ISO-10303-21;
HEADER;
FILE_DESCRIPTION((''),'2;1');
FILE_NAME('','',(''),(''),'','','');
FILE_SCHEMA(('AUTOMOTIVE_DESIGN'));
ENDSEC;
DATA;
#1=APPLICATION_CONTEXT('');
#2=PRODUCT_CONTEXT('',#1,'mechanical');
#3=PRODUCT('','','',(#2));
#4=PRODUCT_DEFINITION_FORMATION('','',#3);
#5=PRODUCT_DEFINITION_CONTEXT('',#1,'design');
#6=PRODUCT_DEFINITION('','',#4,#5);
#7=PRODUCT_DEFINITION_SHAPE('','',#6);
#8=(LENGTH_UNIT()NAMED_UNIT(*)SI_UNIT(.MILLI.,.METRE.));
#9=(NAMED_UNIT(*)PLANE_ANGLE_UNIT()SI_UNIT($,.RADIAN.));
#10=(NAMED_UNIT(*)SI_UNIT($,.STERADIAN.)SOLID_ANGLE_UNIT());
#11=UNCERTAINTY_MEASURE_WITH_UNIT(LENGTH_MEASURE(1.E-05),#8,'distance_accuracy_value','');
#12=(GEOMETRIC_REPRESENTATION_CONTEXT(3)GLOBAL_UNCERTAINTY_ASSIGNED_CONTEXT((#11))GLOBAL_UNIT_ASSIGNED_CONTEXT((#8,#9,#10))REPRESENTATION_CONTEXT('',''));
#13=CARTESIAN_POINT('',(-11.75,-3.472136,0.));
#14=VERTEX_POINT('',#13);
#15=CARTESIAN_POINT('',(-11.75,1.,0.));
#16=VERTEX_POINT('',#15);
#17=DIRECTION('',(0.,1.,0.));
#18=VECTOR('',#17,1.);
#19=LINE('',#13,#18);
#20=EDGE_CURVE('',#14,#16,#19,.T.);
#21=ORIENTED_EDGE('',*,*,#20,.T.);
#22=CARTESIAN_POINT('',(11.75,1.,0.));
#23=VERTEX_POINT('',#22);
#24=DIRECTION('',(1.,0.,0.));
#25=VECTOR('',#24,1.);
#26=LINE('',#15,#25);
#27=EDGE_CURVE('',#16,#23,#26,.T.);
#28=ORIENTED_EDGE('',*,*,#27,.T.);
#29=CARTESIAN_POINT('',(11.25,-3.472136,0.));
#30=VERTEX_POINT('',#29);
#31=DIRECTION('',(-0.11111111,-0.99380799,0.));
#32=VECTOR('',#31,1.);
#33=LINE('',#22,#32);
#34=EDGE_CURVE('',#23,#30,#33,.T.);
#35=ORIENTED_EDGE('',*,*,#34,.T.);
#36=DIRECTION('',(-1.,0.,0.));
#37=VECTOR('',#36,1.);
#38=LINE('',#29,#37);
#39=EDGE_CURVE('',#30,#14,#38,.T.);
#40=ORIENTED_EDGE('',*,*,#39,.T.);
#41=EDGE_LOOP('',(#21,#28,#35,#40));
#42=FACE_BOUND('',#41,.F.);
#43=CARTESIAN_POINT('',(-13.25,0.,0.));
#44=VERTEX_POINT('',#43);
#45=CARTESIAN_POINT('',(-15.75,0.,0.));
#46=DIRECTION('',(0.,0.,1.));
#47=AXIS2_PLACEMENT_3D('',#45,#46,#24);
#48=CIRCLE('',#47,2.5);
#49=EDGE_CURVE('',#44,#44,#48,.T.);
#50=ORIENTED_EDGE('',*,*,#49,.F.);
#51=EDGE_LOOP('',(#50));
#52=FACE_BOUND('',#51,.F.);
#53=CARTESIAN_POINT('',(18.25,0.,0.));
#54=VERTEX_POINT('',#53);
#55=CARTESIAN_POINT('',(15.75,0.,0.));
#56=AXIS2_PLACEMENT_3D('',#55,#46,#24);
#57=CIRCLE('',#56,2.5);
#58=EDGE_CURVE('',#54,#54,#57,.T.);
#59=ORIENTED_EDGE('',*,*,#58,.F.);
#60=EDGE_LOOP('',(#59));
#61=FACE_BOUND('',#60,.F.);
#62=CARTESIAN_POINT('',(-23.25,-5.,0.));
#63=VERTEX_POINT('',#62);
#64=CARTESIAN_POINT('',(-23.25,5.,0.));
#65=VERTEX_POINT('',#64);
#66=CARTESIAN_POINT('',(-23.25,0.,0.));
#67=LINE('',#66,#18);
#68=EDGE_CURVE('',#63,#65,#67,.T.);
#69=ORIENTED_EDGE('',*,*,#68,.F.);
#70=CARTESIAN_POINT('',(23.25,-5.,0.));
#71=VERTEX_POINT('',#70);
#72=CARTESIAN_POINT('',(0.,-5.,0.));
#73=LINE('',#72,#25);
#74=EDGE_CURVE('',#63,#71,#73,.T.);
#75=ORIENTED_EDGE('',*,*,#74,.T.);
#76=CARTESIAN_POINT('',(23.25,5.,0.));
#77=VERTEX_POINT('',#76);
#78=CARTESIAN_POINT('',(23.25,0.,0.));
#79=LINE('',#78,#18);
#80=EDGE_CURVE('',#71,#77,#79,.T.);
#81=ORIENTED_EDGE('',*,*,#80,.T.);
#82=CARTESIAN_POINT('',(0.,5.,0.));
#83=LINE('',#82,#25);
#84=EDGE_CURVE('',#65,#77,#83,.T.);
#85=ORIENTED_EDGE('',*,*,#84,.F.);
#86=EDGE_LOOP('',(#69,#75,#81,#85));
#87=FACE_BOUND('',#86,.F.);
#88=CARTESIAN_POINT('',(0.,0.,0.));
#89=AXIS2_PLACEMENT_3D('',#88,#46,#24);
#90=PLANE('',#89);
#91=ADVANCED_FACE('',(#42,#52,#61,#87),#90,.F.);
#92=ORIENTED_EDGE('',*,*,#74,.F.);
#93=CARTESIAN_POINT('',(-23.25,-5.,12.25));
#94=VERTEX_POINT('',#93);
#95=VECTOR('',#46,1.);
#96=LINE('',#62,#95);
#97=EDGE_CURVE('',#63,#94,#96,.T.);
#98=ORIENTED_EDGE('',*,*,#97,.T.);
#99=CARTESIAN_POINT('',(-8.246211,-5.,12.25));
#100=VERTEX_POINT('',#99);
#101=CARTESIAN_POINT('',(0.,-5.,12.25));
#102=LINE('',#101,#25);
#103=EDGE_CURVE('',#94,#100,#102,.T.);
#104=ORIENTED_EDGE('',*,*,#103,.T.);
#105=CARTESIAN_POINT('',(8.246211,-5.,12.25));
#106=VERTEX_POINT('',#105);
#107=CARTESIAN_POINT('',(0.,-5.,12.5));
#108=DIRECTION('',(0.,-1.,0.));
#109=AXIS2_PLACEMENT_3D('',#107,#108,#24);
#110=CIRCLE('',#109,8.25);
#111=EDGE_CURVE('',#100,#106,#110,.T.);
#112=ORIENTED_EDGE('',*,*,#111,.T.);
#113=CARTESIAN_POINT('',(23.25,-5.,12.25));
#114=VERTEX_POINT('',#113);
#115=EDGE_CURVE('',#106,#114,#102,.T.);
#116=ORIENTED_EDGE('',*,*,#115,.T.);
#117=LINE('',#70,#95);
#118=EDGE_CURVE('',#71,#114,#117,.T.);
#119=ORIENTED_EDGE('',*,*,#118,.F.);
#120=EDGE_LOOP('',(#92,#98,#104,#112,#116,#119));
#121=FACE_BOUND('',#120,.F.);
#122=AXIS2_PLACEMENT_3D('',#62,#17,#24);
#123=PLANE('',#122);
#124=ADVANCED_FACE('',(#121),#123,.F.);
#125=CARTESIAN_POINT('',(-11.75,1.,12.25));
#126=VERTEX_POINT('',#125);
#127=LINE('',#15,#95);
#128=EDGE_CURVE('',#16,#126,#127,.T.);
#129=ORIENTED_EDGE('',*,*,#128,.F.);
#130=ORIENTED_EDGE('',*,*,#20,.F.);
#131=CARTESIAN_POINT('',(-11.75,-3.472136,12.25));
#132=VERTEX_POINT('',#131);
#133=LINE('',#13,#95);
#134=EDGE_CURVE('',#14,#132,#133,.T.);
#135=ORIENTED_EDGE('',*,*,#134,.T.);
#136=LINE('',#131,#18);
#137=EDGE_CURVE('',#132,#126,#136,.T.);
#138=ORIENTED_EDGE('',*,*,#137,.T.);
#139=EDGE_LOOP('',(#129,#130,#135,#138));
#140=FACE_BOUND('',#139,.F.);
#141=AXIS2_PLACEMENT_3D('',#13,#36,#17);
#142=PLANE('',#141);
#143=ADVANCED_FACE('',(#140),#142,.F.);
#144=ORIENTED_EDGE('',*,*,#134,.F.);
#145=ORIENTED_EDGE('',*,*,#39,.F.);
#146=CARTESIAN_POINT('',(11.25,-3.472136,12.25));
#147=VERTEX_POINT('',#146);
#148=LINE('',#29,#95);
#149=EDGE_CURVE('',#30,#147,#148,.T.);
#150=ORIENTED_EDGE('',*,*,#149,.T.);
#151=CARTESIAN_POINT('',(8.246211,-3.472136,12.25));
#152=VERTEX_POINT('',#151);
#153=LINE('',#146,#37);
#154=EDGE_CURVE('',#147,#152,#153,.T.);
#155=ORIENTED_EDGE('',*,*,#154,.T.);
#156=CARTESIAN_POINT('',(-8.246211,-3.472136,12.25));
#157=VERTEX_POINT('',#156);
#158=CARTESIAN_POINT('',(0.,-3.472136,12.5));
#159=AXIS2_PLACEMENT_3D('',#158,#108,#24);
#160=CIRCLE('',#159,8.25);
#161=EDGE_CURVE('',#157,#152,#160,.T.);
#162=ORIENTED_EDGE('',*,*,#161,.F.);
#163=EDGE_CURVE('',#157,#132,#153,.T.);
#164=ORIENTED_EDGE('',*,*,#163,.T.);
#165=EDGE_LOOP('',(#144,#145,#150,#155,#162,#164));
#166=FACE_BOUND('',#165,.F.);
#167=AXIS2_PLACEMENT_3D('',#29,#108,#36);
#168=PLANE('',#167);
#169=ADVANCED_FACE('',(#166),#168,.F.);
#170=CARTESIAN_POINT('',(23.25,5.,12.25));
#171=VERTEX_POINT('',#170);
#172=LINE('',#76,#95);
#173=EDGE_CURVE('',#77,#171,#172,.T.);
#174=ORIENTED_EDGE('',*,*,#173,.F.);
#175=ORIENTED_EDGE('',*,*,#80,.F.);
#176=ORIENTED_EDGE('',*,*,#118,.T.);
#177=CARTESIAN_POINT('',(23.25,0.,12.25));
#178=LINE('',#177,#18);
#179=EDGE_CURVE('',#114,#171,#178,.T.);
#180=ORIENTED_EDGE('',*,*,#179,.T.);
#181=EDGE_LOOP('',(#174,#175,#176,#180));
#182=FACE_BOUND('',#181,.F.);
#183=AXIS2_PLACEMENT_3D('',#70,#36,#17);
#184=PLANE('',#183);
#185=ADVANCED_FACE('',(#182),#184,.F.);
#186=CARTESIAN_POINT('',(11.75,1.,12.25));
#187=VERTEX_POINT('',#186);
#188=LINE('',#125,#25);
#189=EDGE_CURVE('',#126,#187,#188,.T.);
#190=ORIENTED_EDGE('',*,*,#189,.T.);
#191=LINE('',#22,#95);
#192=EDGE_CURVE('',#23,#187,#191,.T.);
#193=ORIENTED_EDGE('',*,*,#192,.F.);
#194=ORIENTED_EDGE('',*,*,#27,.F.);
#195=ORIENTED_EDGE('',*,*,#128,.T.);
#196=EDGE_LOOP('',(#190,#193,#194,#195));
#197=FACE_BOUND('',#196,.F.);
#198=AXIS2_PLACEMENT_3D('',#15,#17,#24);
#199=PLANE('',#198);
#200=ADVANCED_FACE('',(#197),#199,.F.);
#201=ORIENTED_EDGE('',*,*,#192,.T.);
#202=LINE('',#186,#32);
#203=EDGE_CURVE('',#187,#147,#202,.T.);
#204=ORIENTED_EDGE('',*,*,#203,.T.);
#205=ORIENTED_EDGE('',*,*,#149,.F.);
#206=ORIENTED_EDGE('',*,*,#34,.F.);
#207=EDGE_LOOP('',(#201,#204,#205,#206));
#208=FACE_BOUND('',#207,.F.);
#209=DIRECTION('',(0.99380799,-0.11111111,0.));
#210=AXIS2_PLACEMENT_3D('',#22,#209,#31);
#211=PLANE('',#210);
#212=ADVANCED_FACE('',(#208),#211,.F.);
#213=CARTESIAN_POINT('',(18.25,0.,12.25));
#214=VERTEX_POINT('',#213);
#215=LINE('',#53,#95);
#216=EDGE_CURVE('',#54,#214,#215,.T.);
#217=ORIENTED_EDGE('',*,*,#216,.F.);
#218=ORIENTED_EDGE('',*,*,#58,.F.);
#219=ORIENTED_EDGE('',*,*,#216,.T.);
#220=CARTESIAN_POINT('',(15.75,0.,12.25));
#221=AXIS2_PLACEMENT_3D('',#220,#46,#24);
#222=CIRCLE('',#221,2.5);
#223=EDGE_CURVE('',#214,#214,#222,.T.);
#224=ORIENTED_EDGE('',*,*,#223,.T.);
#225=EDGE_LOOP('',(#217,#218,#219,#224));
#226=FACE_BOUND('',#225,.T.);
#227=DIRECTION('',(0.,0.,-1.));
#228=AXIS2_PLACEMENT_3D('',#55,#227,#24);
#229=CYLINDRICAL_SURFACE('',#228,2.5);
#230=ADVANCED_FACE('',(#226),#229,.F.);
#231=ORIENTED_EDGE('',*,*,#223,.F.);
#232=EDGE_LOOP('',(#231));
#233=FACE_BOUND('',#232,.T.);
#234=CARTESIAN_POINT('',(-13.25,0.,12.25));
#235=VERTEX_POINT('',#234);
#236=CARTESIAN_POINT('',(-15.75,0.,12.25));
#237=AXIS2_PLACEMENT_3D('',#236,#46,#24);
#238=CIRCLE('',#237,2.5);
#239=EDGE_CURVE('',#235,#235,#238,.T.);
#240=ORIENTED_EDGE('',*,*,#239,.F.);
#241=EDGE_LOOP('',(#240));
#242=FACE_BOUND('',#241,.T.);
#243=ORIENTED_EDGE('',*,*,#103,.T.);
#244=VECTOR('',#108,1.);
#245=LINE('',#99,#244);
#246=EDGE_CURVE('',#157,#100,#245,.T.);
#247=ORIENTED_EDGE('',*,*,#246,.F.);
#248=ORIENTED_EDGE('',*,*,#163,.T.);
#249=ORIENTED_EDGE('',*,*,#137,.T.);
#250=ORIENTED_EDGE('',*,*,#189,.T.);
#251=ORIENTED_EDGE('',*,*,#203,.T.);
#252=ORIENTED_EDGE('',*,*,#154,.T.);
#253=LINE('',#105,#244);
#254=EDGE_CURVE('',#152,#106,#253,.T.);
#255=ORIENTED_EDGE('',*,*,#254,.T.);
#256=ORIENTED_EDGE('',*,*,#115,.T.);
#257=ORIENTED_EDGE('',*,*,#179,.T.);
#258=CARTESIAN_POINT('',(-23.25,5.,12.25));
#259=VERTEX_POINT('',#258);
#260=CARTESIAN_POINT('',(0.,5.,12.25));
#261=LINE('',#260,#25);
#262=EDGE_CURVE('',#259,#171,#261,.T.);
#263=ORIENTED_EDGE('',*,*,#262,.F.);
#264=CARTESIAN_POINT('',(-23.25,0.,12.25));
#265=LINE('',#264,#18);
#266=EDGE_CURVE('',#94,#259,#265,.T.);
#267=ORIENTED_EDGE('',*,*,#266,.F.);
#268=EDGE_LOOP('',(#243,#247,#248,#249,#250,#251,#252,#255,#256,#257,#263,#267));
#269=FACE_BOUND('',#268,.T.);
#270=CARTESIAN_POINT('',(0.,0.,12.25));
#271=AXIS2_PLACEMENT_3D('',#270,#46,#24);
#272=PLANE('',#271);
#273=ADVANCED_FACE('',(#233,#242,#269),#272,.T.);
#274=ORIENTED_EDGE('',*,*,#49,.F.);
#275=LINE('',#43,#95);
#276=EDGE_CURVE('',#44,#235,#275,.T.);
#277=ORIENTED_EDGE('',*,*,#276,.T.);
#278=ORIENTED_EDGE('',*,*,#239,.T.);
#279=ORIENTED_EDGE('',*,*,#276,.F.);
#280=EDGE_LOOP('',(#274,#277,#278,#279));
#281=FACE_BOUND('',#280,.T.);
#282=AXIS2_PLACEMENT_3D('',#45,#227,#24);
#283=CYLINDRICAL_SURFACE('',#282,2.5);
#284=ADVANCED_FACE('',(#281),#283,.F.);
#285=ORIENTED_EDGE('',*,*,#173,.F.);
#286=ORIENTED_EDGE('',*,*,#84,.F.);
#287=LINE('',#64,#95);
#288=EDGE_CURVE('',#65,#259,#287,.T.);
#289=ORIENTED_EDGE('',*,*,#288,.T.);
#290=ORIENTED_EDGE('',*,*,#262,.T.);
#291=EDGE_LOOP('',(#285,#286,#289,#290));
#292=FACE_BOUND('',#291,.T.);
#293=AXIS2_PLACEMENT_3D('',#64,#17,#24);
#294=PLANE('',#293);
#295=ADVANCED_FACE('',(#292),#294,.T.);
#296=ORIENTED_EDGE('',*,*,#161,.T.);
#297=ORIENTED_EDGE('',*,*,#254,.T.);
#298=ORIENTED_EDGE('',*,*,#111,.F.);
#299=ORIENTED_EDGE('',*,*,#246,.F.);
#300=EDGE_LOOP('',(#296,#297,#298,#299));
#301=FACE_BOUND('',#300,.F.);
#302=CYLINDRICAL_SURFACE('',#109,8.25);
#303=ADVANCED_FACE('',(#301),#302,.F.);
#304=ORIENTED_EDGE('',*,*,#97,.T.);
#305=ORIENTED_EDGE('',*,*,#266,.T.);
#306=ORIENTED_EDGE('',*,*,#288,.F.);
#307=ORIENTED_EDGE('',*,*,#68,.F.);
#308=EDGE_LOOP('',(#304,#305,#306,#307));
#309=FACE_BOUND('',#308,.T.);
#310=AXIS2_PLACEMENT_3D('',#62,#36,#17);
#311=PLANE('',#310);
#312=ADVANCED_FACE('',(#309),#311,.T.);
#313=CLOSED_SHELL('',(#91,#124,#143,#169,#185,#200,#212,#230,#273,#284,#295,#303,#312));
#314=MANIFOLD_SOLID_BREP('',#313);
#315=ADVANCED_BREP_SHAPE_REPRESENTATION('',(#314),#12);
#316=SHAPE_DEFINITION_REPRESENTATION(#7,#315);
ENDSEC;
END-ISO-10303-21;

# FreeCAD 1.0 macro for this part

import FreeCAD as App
import Part
import Sketcher

V = App.Vector


def add_polygon(sketch, points):
    """Adds a closed chain of lines whose ends are joined by coincident constraints."""
    first, n = sketch.GeometryCount, len(points)
    for a, b in zip(points, points[1:] + points[:1]):
        sketch.addGeometry(Part.LineSegment(App.Vector(*a, 0), App.Vector(*b, 0)), False)
    for i in range(n):
        sketch.addConstraint(Sketcher.Constraint("Coincident", first + i, 2, first + (i + 1) % n, 1))

doc = App.newDocument("Part")
body = doc.addObject("PartDesign::Body", "Body")

# Sketch on XY plane
sketch1 = body.newObject("Sketcher::SketchObject", "Sketch")
sketch1.AttachmentSupport = (doc.getObject("XY_Plane"), [""])
sketch1.MapMode = "FlatFace"
add_polygon(sketch1, [(-23.25, 5), (-23.25, -5), (23.25, -5), (23.25, 5)])  # lines 0-3
add_polygon(sketch1, [(11.75, 1), (11.25, -3.472136), (-11.75, -3.472136), (-11.75, 1)])  # lines 4-7
sketch1.addGeometry(Part.Circle(V(-15.75, 0, 0), V(0, 0, 1), 2.5), False)  # 8
sketch1.addGeometry(Part.Circle(V(15.75, 0, 0), V(0, 0, 1), 2.5), False)  # 9
sketch1.addConstraint(Sketcher.Constraint("Vertical", 0))
sketch1.addConstraint(Sketcher.Constraint("Horizontal", 1))
sketch1.addConstraint(Sketcher.Constraint("Vertical", 2))
sketch1.addConstraint(Sketcher.Constraint("Horizontal", 3))
sketch1.addConstraint(Sketcher.Constraint("Horizontal", 5))
sketch1.addConstraint(Sketcher.Constraint("Vertical", 6))
sketch1.addConstraint(Sketcher.Constraint("Horizontal", 7))
sketch1.addConstraint(Sketcher.Constraint("Equal", 8, 9))
sketch1.addConstraint(Sketcher.Constraint("Symmetric", 8, 3, 9, 3, -1, 1))
sketch1.addConstraint(Sketcher.Constraint("Symmetric", 0, 2, 2, 2, -1, 1))
sketch1.addConstraint(Sketcher.Constraint("PointOnObject", 8, 3, -1))
sketch1.addConstraint(Sketcher.Constraint("Diameter", 8, 5.0))
sketch1.addConstraint(Sketcher.Constraint("DistanceX", 5, 2, 5, 1, 23.0))
sketch1.addConstraint(Sketcher.Constraint("DistanceY", 0, 2, 0, 1, 10.0))
sketch1.addConstraint(Sketcher.Constraint("DistanceX", 1, 1, 1, 2, 46.5))
sketch1.addConstraint(Sketcher.Constraint("DistanceX", 7, 1, 7, 2, 23.5))
sketch1.addConstraint(Sketcher.Constraint("DistanceY", -1, 1, 6, 2, 1.0))
sketch1.addConstraint(Sketcher.Constraint("DistanceX", 0, 2, 9, 3, 39.0))
sketch1.addConstraint(Sketcher.Constraint("DistanceX", 4, 2, 1, 2, 12.0))
sketch1.addConstraint(Sketcher.Constraint("Distance", 4, 4.5))
pad1 = body.newObject("PartDesign::Pad", "Pad")
pad1.Profile = sketch1
pad1.Length = 12.25

# Sketch on XZ plane
sketch2 = body.newObject("Sketcher::SketchObject", "Sketch001")
sketch2.AttachmentSupport = (doc.getObject("XZ_Plane"), [""])
sketch2.MapMode = "FlatFace"
sketch2.AttachmentOffset = App.Placement(V(0, 0, 5), App.Rotation())
sketch2.addGeometry(Part.Circle(V(0, 12.5, 0), V(0, 0, 1), 8.25), False)
sketch2.addConstraint(Sketcher.Constraint("PointOnObject", 0, 3, -2))
sketch2.addConstraint(Sketcher.Constraint("Diameter", 0, 16.5))
sketch2.addConstraint(Sketcher.Constraint("DistanceY", -1, 1, 0, 3, 12.5))
pocket1 = body.newObject("PartDesign::Pocket", "Pocket")
pocket1.Profile = sketch2
pocket1.Length = 5

doc.recompute()
